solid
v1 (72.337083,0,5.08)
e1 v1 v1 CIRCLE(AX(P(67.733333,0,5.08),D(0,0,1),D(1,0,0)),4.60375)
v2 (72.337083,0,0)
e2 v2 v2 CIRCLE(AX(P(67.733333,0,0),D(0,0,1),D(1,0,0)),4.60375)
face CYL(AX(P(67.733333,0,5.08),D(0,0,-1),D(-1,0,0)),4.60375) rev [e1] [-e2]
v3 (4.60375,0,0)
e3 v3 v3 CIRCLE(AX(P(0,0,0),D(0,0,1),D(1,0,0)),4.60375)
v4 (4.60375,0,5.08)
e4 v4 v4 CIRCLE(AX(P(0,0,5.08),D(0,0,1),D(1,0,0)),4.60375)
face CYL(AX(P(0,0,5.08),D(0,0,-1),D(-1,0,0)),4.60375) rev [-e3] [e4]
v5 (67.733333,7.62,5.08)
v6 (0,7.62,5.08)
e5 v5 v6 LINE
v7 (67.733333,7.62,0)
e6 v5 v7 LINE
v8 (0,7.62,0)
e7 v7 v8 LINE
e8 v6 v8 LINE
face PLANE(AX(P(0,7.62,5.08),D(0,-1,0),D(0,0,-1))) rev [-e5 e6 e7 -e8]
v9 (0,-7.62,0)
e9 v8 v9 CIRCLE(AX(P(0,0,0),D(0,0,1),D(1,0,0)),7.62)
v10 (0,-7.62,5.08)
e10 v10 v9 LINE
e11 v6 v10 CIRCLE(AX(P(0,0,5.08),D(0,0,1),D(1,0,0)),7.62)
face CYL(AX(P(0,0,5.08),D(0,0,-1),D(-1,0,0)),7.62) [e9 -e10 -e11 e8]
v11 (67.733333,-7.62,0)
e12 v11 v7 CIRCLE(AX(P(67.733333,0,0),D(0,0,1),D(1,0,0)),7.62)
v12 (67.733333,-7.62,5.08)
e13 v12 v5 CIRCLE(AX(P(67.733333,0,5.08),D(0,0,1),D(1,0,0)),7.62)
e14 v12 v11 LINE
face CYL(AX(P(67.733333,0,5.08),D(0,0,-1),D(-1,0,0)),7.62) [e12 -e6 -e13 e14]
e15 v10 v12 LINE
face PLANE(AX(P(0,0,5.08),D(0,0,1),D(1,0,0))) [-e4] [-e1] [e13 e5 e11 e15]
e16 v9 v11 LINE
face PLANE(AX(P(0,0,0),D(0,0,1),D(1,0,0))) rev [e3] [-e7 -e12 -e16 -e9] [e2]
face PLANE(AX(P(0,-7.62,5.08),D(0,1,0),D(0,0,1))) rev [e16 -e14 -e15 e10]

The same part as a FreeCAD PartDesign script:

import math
import FreeCAD as App
import Part
import Sketcher
Q = App.Units.Quantity

doc = App.newDocument("Part")
body = doc.addObject("PartDesign::Body", "Body")

# Sketch on XY plane
sketch1 = body.newObject("Sketcher::SketchObject", "Sketch")
sketch1.AttachmentSupport = (doc.getObject("XY_Plane"), [""])
sketch1.MapMode = "FlatFace"
sketch1.addGeometry([
    Part.LineSegment(App.Vector(67.7, 7.6, 0), App.Vector(0, 7.6, 0)),  # 0
    Part.ArcOfCircle(Part.Circle(App.Vector(0, 0, 0), App.Vector(0, 0, 1), 7.6), math.radians(90), math.radians(270)),  # 1
    Part.LineSegment(App.Vector(0, -7.6, 0), App.Vector(67.7, -7.6, 0)),  # 2
    Part.ArcOfCircle(Part.Circle(App.Vector(67.7, 0, 0), App.Vector(0, 0, 1), 7.6), math.radians(-90), math.radians(90)),  # 3
    Part.Circle(App.Vector(67.7, 0, 0), App.Vector(0, 0, 1), 4.6),  # 4
    Part.Circle(App.Vector(0, 0, 0), App.Vector(0, 0, 1), 4.6),  # 5
], False)
sketch1.addConstraint([
    Sketcher.Constraint("Tangent", 0, 2, 1, 1),
    Sketcher.Constraint("Tangent", 1, 2, 2, 1),
    Sketcher.Constraint("Tangent", 2, 2, 3, 1),
    Sketcher.Constraint("Tangent", 3, 2, 0, 1),
    Sketcher.Constraint("Horizontal", 0),
    Sketcher.Constraint("Horizontal", 2),
    Sketcher.Constraint("Coincident", 1, 3, -1, 1),
    Sketcher.Constraint("Coincident", 5, 3, -1, 1),
    Sketcher.Constraint("Coincident", 4, 3, 3, 3),
    Sketcher.Constraint("Equal", 4, 5),
    Sketcher.Constraint("Radius", 1, Q("0.3 in")),
    Sketcher.Constraint("Diameter", 4, Q("0.3625 in")),
    Sketcher.Constraint("DistanceX", 0, 2, 0, 1, 67.733333),
])
pad1 = body.newObject("PartDesign::Pad", "Pad")
pad1.Profile = sketch1
pad1.Length = Q("0.2 in")

doc.recompute()
